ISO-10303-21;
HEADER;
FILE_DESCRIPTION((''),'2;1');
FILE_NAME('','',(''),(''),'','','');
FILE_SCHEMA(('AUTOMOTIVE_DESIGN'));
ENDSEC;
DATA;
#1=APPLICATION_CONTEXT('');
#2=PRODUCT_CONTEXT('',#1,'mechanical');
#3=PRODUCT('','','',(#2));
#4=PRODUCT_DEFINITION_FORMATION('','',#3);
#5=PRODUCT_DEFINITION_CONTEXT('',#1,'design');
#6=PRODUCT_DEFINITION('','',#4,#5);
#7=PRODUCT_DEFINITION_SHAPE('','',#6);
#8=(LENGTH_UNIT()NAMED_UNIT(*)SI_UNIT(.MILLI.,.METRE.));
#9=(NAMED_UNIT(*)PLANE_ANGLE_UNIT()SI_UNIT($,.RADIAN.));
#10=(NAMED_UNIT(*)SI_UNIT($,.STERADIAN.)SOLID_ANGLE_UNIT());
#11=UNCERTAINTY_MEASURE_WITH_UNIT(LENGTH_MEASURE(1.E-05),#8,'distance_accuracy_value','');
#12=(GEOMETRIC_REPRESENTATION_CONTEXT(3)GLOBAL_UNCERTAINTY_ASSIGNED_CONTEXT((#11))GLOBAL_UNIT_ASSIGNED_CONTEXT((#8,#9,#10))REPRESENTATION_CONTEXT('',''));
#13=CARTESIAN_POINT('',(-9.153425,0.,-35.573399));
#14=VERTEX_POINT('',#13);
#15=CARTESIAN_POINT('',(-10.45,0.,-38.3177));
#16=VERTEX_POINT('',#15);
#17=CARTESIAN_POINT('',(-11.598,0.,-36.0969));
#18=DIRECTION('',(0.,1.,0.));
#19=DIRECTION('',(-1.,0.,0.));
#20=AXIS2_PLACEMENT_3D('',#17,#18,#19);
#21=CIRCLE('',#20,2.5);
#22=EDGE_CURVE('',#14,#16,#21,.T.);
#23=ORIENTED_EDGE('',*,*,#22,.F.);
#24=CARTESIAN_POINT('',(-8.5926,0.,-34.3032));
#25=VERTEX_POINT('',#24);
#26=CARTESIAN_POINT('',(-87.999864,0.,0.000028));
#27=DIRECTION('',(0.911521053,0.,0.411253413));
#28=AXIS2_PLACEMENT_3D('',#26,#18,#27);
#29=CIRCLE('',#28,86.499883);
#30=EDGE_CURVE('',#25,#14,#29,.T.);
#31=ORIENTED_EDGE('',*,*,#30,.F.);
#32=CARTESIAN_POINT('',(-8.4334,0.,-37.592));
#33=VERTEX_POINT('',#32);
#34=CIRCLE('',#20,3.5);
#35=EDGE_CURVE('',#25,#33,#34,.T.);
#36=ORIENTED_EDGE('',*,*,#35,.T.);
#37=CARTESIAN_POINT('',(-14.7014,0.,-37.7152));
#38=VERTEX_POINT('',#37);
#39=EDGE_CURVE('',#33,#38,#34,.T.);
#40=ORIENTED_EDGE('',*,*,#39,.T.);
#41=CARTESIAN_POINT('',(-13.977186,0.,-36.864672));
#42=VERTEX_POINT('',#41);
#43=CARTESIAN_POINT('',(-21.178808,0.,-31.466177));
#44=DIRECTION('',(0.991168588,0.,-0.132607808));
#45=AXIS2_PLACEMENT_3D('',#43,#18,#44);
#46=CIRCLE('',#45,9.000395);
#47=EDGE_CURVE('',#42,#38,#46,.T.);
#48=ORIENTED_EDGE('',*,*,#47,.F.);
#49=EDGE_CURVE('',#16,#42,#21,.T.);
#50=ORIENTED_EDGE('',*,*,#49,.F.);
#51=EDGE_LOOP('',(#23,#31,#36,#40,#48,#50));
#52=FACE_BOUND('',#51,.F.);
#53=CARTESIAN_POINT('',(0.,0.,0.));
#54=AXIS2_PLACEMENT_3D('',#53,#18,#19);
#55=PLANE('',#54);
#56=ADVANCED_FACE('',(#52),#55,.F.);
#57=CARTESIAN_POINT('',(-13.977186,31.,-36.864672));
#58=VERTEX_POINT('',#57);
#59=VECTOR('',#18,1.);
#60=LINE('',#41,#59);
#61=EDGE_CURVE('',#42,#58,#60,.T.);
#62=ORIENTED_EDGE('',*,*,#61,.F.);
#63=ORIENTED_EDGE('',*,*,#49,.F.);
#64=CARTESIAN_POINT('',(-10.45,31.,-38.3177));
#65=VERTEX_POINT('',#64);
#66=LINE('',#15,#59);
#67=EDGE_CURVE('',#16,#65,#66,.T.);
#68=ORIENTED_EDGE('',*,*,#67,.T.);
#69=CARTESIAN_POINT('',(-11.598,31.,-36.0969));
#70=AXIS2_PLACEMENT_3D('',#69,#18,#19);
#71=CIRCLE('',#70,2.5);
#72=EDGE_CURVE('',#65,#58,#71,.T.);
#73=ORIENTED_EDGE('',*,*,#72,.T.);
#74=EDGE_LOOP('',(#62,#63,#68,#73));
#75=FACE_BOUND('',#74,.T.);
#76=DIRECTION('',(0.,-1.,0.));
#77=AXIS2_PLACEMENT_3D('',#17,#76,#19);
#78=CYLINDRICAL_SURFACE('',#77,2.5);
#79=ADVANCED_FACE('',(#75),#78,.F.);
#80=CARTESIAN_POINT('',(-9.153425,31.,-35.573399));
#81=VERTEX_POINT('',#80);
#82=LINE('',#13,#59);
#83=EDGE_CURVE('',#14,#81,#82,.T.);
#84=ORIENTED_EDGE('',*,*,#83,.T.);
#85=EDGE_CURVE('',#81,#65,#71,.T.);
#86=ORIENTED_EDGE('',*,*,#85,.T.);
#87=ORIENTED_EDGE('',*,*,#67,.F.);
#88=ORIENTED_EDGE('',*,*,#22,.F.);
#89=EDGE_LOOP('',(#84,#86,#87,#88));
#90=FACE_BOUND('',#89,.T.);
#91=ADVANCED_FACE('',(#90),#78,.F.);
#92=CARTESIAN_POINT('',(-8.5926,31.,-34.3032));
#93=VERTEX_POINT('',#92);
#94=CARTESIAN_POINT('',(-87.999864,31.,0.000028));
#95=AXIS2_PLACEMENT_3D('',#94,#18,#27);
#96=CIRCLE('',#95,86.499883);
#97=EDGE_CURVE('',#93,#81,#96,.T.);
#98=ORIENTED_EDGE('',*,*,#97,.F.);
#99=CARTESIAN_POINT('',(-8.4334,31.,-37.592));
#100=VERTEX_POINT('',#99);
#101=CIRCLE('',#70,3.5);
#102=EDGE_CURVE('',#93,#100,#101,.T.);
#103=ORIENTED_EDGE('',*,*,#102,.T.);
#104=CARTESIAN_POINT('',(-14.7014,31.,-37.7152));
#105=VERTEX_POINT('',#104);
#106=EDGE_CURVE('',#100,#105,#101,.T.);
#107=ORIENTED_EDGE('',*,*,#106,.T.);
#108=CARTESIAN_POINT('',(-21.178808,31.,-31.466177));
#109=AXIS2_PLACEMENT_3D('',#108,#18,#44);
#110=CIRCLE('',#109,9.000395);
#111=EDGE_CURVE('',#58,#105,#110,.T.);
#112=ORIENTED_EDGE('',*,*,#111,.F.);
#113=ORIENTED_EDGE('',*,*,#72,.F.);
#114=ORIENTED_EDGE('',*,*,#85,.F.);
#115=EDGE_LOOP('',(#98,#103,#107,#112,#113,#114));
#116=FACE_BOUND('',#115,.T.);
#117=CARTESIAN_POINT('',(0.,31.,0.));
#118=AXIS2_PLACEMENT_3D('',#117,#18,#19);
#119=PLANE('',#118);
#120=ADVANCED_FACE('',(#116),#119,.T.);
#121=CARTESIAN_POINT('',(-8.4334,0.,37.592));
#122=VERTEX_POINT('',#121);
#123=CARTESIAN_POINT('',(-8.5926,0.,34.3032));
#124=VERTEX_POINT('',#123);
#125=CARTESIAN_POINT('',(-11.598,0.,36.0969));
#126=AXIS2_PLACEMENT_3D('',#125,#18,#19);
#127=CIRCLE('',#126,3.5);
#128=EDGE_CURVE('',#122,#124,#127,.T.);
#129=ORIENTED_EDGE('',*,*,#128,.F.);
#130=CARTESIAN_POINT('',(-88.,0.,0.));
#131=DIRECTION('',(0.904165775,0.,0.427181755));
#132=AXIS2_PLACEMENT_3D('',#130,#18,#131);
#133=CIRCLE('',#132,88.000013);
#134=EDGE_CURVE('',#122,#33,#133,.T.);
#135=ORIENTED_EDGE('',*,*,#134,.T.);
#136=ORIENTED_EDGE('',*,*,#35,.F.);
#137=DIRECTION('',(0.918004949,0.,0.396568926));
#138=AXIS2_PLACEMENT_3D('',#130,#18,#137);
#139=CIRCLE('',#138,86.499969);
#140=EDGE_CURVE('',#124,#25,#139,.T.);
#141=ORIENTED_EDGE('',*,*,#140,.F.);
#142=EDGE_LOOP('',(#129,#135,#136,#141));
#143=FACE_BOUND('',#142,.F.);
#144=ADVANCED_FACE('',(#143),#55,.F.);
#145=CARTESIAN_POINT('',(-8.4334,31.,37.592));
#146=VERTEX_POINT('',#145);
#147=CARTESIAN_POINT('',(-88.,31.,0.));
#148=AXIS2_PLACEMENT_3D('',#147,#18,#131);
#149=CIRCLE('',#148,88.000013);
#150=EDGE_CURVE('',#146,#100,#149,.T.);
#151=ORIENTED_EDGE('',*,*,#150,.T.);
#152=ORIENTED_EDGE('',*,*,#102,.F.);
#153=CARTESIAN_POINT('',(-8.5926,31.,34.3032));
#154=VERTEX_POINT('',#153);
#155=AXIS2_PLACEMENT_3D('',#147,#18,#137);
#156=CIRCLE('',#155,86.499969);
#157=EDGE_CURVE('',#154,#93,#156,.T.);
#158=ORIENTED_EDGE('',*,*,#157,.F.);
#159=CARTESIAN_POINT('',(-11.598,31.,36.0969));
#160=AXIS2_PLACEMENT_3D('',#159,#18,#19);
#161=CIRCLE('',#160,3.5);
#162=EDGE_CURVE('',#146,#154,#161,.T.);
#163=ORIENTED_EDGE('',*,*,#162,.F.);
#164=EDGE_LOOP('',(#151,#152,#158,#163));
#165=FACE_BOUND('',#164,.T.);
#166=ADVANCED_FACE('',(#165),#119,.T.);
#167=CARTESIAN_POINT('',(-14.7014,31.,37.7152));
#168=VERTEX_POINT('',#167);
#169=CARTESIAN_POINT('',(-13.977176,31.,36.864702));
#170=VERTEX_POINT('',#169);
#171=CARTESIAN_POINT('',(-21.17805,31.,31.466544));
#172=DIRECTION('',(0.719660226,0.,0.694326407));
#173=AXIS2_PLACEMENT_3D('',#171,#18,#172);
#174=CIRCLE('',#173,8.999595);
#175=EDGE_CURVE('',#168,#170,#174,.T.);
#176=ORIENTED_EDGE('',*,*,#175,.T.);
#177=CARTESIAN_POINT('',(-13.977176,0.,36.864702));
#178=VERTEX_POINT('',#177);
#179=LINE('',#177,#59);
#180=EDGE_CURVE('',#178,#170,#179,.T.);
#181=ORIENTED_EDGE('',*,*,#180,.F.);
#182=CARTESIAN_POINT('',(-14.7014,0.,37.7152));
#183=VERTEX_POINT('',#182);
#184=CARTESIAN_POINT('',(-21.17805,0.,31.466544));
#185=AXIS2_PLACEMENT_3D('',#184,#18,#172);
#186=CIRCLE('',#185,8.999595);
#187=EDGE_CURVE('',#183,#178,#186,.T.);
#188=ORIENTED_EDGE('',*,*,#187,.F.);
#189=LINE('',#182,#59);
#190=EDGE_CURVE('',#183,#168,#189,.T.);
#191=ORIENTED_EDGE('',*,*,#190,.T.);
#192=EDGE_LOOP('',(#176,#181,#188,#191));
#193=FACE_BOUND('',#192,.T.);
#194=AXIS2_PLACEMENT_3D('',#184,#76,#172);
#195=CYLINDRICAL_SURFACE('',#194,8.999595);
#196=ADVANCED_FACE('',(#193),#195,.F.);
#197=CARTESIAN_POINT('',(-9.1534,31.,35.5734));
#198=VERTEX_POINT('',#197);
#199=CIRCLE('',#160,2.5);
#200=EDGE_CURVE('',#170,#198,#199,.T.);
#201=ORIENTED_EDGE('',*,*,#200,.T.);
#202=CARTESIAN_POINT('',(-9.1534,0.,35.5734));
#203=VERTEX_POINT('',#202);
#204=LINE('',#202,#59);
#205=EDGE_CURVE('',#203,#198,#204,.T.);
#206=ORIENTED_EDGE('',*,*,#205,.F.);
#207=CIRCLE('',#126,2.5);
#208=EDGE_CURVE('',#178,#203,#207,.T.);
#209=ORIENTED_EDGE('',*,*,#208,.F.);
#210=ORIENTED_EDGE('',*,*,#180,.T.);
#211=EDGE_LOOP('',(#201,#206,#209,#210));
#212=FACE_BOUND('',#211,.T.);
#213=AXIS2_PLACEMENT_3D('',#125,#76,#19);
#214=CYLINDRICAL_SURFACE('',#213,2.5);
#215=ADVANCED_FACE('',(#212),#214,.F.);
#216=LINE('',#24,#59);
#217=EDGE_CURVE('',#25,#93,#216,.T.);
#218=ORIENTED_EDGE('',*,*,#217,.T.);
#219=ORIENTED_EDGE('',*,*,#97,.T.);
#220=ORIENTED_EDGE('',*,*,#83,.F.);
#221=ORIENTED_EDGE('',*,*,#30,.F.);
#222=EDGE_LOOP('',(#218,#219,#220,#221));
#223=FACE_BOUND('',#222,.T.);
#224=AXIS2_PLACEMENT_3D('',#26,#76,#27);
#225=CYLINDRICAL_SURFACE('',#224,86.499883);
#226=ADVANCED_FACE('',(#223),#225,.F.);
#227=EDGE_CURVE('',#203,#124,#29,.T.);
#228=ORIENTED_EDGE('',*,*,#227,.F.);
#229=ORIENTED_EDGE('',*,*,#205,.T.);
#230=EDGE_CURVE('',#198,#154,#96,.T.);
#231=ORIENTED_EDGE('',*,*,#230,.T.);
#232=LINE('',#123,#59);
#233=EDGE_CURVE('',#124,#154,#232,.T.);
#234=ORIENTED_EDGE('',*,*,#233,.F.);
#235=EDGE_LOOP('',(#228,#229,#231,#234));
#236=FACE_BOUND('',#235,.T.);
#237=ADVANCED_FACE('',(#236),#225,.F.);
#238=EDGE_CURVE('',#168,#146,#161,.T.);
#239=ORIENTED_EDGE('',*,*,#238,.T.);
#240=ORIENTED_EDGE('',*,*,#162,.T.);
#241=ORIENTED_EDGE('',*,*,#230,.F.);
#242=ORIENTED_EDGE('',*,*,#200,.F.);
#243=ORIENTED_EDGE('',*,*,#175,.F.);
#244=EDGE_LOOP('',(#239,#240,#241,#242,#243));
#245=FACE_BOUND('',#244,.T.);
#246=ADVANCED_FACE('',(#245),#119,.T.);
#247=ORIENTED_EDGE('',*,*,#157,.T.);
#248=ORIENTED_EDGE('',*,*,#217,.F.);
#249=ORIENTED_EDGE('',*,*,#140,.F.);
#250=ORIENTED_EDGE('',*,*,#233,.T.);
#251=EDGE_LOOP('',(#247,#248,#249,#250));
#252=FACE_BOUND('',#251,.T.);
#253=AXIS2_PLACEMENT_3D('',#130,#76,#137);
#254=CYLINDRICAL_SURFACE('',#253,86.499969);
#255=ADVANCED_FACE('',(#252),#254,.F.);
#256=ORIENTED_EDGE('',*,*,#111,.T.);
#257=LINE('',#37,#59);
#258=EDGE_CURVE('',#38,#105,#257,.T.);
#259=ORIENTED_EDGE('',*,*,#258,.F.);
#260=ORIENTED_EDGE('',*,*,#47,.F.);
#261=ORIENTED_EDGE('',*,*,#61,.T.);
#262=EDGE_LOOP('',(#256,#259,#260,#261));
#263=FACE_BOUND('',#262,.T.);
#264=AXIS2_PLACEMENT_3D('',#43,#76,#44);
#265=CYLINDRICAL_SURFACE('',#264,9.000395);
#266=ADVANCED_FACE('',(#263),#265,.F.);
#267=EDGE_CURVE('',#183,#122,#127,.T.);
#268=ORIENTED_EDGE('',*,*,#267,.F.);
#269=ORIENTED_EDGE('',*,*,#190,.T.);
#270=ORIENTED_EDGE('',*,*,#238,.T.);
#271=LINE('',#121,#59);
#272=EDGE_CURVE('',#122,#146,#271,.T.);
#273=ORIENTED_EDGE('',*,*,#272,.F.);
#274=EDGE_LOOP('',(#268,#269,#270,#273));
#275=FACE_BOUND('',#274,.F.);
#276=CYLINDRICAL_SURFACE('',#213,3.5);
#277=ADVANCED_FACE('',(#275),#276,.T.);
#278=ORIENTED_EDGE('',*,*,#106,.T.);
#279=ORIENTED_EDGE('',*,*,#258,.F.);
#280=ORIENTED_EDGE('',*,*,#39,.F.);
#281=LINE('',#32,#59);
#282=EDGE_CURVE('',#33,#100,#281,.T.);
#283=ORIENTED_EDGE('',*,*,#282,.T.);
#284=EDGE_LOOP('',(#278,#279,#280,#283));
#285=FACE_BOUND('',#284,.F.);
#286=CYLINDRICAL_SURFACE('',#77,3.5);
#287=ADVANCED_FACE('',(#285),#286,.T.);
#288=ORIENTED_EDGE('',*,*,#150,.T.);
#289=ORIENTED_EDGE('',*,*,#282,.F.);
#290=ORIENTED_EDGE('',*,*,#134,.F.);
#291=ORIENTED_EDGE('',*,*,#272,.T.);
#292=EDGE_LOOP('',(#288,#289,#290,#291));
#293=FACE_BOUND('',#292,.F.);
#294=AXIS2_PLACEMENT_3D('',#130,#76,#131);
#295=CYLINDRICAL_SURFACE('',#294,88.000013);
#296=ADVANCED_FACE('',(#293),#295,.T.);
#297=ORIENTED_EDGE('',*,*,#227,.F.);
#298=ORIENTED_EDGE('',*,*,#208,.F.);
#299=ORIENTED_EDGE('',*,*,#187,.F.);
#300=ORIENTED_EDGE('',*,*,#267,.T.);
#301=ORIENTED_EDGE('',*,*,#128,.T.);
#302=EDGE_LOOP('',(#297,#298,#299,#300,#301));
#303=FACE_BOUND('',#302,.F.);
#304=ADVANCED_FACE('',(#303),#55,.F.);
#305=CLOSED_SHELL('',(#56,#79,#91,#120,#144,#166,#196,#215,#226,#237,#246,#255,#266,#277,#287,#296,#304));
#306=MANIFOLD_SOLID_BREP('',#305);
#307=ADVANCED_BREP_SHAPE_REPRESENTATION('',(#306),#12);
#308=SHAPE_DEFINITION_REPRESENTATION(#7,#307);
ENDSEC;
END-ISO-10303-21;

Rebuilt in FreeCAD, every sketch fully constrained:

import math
import FreeCAD as App
import Part
import Sketcher
Q = App.Units.Quantity

doc = App.newDocument("Part")
body = doc.addObject("PartDesign::Body", "Body")

# Sketch on XZ plane
sketch1 = body.newObject("Sketcher::SketchObject", "Sketch")
sketch1.AttachmentSupport = (doc.getObject("XZ_Plane"), [""])
sketch1.MapMode = "FlatFace"
sketch1.addGeometry(Part.ArcOfCircle(Part.Circle(App.Vector(-88, 0, 0), App.Vector(0, 0, 1), 86.5), math.radians(-23), math.radians(23)), False)
sketch1.addGeometry(Part.ArcOfCircle(Part.Circle(App.Vector(-88, 0, 0), App.Vector(0, 0, 1), 86.5), math.radians(23.36), math.radians(24.28)), False)
sketch1.addGeometry(Part.ArcOfCircle(Part.Circle(App.Vector(-11.6, 36.1, 0), App.Vector(0, 0, 1), 2.5), math.radians(-12), math.radians(162)), False)
sketch1.addGeometry(Part.ArcOfCircle(Part.Circle(App.Vector(-21.2, 31.5, 0), App.Vector(0, 0, 1), 9), math.radians(36.86), math.radians(43.97)), False)
sketch1.addGeometry(Part.ArcOfCircle(Part.Circle(App.Vector(-11.6, 36.1, 0), App.Vector(0, 0, 1), 3.5), math.radians(25), math.radians(152)), False)
sketch1.addGeometry(Part.ArcOfCircle(Part.Circle(App.Vector(-88, 0, 0), App.Vector(0, 0, 1), 88), math.radians(-25), math.radians(25)), False)
sketch1.addGeometry(Part.ArcOfCircle(Part.Circle(App.Vector(-11.6, -36.1, 0), App.Vector(0, 0, 1), 3.5), math.radians(-152), math.radians(-25)), False)
sketch1.addGeometry(Part.ArcOfCircle(Part.Circle(App.Vector(-21.2, -31.5, 0), App.Vector(0, 0, 1), 9), math.radians(-43.97), math.radians(-36.86)), False)
sketch1.addGeometry(Part.ArcOfCircle(Part.Circle(App.Vector(-11.6, -36.1, 0), App.Vector(0, 0, 1), 2.5), math.radians(-162), math.radians(12)), False)
sketch1.addGeometry(Part.ArcOfCircle(Part.Circle(App.Vector(-88, 0, 0), App.Vector(0, 0, 1), 86.5), math.radians(-24.28), math.radians(-23.36)), False)
sketch1.addConstraint(Sketcher.Constraint("Tangent", 0, 2, 1, 1))
sketch1.addConstraint(Sketcher.Constraint("Coincident", 1, 2, 2, 1))
sketch1.addConstraint(Sketcher.Constraint("Coincident", 2, 2, 3, 1))
sketch1.addConstraint(Sketcher.Constraint("Coincident", 3, 2, 4, 2))
sketch1.addConstraint(Sketcher.Constraint("Tangent", 4, 1, 5, 2))
sketch1.addConstraint(Sketcher.Constraint("Tangent", 5, 1, 6, 2))
sketch1.addConstraint(Sketcher.Constraint("Coincident", 6, 1, 7, 1))
sketch1.addConstraint(Sketcher.Constraint("Coincident", 7, 2, 8, 1))
sketch1.addConstraint(Sketcher.Constraint("Coincident", 8, 2, 9, 1))
sketch1.addConstraint(Sketcher.Constraint("Tangent", 9, 2, 0, 1))
sketch1.addConstraint(Sketcher.Constraint("Coincident", 4, 3, 2, 3))
sketch1.addConstraint(Sketcher.Constraint("Coincident", 5, 3, 0, 3))
sketch1.addConstraint(Sketcher.Constraint("Coincident", 8, 3, 6, 3))
sketch1.addConstraint(Sketcher.Constraint("Equal", 0, 1))
sketch1.addConstraint(Sketcher.Constraint("Equal", 4, 6))
sketch1.addConstraint(Sketcher.Constraint("Equal", 3, 7))
sketch1.addConstraint(Sketcher.Constraint("Equal", 2, 8))
sketch1.addConstraint(Sketcher.Constraint("Equal", 1, 9))
sketch1.addConstraint(Sketcher.Constraint("Symmetric", 2, 3, 6, 3, -1))
sketch1.addConstraint(Sketcher.Constraint("Symmetric", 3, 3, 7, 3, -1))
sketch1.addConstraint(Sketcher.Constraint("Vertical", 0, 2, 9, 2))
sketch1.addConstraint(Sketcher.Constraint("Radius", 3, Q("9 mm")))
sketch1.addConstraint(Sketcher.Constraint("Radius", 5, Q("88 mm")))
sketch1.addConstraint(Sketcher.Constraint("Radius", 0, Q("86.5 mm")))
sketch1.addConstraint(Sketcher.Constraint("Radius", 2, Q("2.5 mm")))
sketch1.addConstraint(Sketcher.Constraint("Radius", 4, Q("3.5 mm")))
sketch1.addConstraint(Sketcher.Constraint("DistanceX", 0, 3, -1, 1, Q("88 mm")))
sketch1.addConstraint(Sketcher.Constraint("DistanceY", 6, 3, 0, 2, Q("70.4 mm")))
sketch1.addConstraint(Sketcher.Constraint("DistanceX", 2, 3, -1, 1, Q("11.598 mm")))
sketch1.addConstraint(Sketcher.Constraint("DistanceY", 3, 3, 0, 2, Q("2.837 mm")))
sketch1.addConstraint(Sketcher.Constraint("DistanceX", 3, 3, 1, 2, Q("12.025 mm")))
pad1 = body.newObject("PartDesign::Pad", "Pad")
pad1.Profile = sketch1
pad1.Length = 31
pad1.Reversed = True

doc.recompute()
